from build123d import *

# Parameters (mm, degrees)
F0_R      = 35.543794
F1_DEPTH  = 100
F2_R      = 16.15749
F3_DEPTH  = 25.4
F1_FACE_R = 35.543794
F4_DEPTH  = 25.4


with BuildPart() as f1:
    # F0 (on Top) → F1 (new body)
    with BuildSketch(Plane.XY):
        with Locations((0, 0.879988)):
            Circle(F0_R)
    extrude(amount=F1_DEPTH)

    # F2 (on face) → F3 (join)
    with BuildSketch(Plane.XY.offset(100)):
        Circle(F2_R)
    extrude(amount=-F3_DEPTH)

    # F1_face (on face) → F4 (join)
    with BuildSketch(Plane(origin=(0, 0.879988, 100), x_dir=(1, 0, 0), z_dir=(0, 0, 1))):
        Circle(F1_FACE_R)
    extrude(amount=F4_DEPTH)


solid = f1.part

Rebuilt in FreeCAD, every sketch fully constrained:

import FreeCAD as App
import Part
import Sketcher
from FreeCAD import Vector

doc = App.newDocument("Part")
body = doc.addObject("PartDesign::Body", "Body")

# Sketch on XY plane
sketch1 = doc.addObject("Sketcher::SketchObject", "Sketch")
body.addObject(sketch1)
sketch1.AttachmentSupport = (doc.XY_Plane, [""])
sketch1.MapMode = "FlatFace"
sketch1.addGeometry(Part.Circle(Vector(0, 1, 0), Vector(0, 0, 1), 36), False)
sketch1.addConstraint([
    Sketcher.Constraint("PointOnObject", 0, 3, -2),
    Sketcher.Constraint("Diameter", 0, 71.087588),
    Sketcher.Constraint("DistanceY", -1, 1, 0, 3, 0.879988),
])
pad1 = doc.addObject("PartDesign::Pad", "Pad")
body.addObject(pad1)
pad1.Profile = sketch1
pad1.Length = 100

# Sketch on XY plane
sketch2 = doc.addObject("Sketcher::SketchObject", "Sketch001")
body.addObject(sketch2)
sketch2.AttachmentSupport = (doc.XY_Plane, [""])
sketch2.MapMode = "FlatFace"
sketch2.AttachmentOffset = App.Placement(Vector(0, 0, 100), App.Rotation())
sketch2.addGeometry(Part.Circle(Vector(0, 0, 0), Vector(0, 0, 1), 16), False)
sketch2.addConstraint([
    Sketcher.Constraint("Coincident", 0, 3, -1, 1),
    Sketcher.Constraint("Diameter", 0, 32.31498),
])
pad2 = doc.addObject("PartDesign::Pad", "Pad001")
body.addObject(pad2)
pad2.Profile = sketch2
pad2.Length = 25.4
pad2.Reversed = True

# Sketch on XY plane
sketch3 = doc.addObject("Sketcher::SketchObject", "Sketch002")
body.addObject(sketch3)
sketch3.AttachmentSupport = (doc.XY_Plane, [""])
sketch3.MapMode = "FlatFace"
sketch3.AttachmentOffset = App.Placement(Vector(0, 0, 100), App.Rotation())
sketch3.addGeometry(Part.Circle(Vector(0, 1, 0), Vector(0, 0, 1), 36), False)
sketch3.addConstraint([
    Sketcher.Constraint("PointOnObject", 0, 3, -2),
    Sketcher.Constraint("Diameter", 0, 71.087588),
    Sketcher.Constraint("DistanceY", -1, 1, 0, 3, 0.879988),
])
pad3 = doc.addObject("PartDesign::Pad", "Pad002")
body.addObject(pad3)
pad3.Profile = sketch3
pad3.Length = 25.4

doc.recompute()
